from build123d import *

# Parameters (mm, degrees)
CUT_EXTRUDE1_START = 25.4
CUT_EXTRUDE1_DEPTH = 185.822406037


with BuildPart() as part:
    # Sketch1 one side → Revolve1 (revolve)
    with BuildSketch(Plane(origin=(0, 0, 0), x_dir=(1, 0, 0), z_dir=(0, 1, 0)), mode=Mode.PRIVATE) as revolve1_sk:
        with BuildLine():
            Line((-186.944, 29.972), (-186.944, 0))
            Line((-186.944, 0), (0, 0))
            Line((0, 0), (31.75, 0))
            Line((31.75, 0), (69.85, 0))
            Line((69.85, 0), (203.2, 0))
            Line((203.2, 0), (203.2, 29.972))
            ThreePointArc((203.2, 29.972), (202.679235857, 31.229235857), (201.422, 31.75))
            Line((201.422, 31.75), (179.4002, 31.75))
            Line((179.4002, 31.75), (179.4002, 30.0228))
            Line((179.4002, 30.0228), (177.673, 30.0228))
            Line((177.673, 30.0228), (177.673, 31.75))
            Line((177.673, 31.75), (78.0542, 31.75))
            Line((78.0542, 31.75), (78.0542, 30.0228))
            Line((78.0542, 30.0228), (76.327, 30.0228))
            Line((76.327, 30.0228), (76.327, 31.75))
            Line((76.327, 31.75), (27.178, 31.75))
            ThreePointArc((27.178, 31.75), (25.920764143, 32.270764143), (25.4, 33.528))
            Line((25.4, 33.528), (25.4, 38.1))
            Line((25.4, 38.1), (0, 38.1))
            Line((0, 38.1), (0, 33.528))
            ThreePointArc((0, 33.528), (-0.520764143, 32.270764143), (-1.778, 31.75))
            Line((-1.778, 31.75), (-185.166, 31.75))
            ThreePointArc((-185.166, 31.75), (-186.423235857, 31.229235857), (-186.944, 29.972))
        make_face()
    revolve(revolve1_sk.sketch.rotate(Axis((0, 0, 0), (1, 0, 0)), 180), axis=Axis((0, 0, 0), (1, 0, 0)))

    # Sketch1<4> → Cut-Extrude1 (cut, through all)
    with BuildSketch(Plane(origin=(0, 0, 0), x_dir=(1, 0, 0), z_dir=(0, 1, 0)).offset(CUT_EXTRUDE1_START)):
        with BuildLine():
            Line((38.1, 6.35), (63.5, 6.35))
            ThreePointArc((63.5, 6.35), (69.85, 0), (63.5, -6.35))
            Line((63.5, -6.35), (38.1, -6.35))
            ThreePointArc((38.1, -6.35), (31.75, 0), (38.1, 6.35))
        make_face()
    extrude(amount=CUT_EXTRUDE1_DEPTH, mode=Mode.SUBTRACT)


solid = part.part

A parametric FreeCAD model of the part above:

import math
import FreeCAD as App
import Part
import Sketcher

V = App.Vector
Q = App.Units.Quantity

doc = App.newDocument("Part")
body = doc.addObject("PartDesign::Body", "Body")

# Sketch on XZ plane
sketch1 = body.newObject("Sketcher::SketchObject", "Sketch")
sketch1.AttachmentSupport = (doc.getObject("XZ_Plane"), [""])
sketch1.MapMode = "FlatFace"
sketch1.addGeometry([
    Part.LineSegment(V(-186.944, -29.972, 0), V(-186.944, 0, 0)),  # 0
    Part.LineSegment(V(-186.944, 0, 0), V(203.2, 0, 0)),  # 1
    Part.LineSegment(V(203.2, 0, 0), V(203.2, -29.972, 0)),  # 2
    Part.ArcOfCircle(Part.Circle(V(201.422, -29.972, 0), V(0, 0, 1), 1.778), math.radians(-90), math.radians(0)),  # 3
    Part.LineSegment(V(201.422, -31.75, 0), V(179.4002, -31.75, 0)),  # 4
    Part.LineSegment(V(179.4002, -31.75, 0), V(179.4002, -30.0228, 0)),  # 5
    Part.LineSegment(V(179.4002, -30.0228, 0), V(177.673, -30.0228, 0)),  # 6
    Part.LineSegment(V(177.673, -30.0228, 0), V(177.673, -31.75, 0)),  # 7
    Part.LineSegment(V(177.673, -31.75, 0), V(78.0542, -31.75, 0)),  # 8
    Part.LineSegment(V(78.0542, -31.75, 0), V(78.0542, -30.0228, 0)),  # 9
    Part.LineSegment(V(78.0542, -30.0228, 0), V(76.327, -30.0228, 0)),  # 10
    Part.LineSegment(V(76.327, -30.0228, 0), V(76.327, -31.75, 0)),  # 11
    Part.LineSegment(V(76.327, -31.75, 0), V(27.178, -31.75, 0)),  # 12
    Part.ArcOfCircle(Part.Circle(V(27.178, -33.528, 0), V(0, 0, 1), 1.778), math.radians(90), math.radians(180)),  # 13
    Part.LineSegment(V(25.4, -33.528, 0), V(25.4, -38.1, 0)),  # 14
    Part.LineSegment(V(25.4, -38.1, 0), V(0, -38.1, 0)),  # 15
    Part.LineSegment(V(0, -38.1, 0), V(0, -33.528, 0)),  # 16
    Part.ArcOfCircle(Part.Circle(V(-1.778, -33.528, 0), V(0, 0, 1), 1.778), math.radians(0), math.radians(90)),  # 17
    Part.LineSegment(V(-1.778, -31.75, 0), V(-185.166, -31.75, 0)),  # 18
    Part.ArcOfCircle(Part.Circle(V(-185.166, -29.972, 0), V(0, 0, 1), 1.778), math.radians(180), math.radians(270)),  # 19
], False)
sketch1.addConstraint([
    Sketcher.Constraint("Coincident", 0, 2, 1, 1),
    Sketcher.Constraint("Coincident", 1, 2, 2, 1),
    Sketcher.Constraint("Tangent", 2, 2, 3, 2),
    Sketcher.Constraint("Tangent", 3, 1, 4, 1),
    Sketcher.Constraint("Coincident", 4, 2, 5, 1),
    Sketcher.Constraint("Coincident", 5, 2, 6, 1),
    Sketcher.Constraint("Coincident", 6, 2, 7, 1),
    Sketcher.Constraint("Coincident", 7, 2, 8, 1),
    Sketcher.Constraint("Coincident", 8, 2, 9, 1),
    Sketcher.Constraint("Coincident", 9, 2, 10, 1),
    Sketcher.Constraint("Coincident", 10, 2, 11, 1),
    Sketcher.Constraint("Coincident", 11, 2, 12, 1),
    Sketcher.Constraint("Tangent", 12, 2, 13, 1),
    Sketcher.Constraint("Tangent", 13, 2, 14, 1),
    Sketcher.Constraint("Coincident", 14, 2, 15, 1),
    Sketcher.Constraint("Coincident", 15, 2, 16, 1),
    Sketcher.Constraint("Tangent", 16, 2, 17, 1),
    Sketcher.Constraint("Tangent", 17, 2, 18, 1),
    Sketcher.Constraint("Tangent", 18, 2, 19, 2),
    Sketcher.Constraint("Tangent", 19, 1, 0, 1),
    Sketcher.Constraint("Vertical", 0),
    Sketcher.Constraint("Horizontal", 1),
    Sketcher.Constraint("Vertical", 2),
    Sketcher.Constraint("Horizontal", 4),
    Sketcher.Constraint("Vertical", 5),
    Sketcher.Constraint("Horizontal", 6),
    Sketcher.Constraint("Vertical", 7),
    Sketcher.Constraint("Horizontal", 8),
    Sketcher.Constraint("Vertical", 9),
    Sketcher.Constraint("Horizontal", 10),
    Sketcher.Constraint("Vertical", 11),
    Sketcher.Constraint("Horizontal", 12),
    Sketcher.Constraint("Vertical", 14),
    Sketcher.Constraint("Horizontal", 15),
    Sketcher.Constraint("Vertical", 16),
    Sketcher.Constraint("Horizontal", 18),
    Sketcher.Constraint("Equal", 3, 13),
    Sketcher.Constraint("Equal", 13, 17),
    Sketcher.Constraint("Equal", 17, 19),
    Sketcher.Constraint("PointOnObject", 0, 2, -1),
    Sketcher.Constraint("PointOnObject", 15, 2, -2),
    Sketcher.Constraint("Horizontal", 13, 3, 17, 3),
    Sketcher.Constraint("Horizontal", 3, 3, 19, 3),
    Sketcher.Constraint("Horizontal", 4, 2, 7, 2),
    Sketcher.Constraint("Horizontal", 6, 2, 9, 2),
    Sketcher.Constraint("Equal", 6, 10),
    Sketcher.Constraint("Equal", 10, 5),
    Sketcher.Constraint("DistanceX", 15, 2, 15, 1, Q("1 in")),
    Sketcher.Constraint("Radius", 3, Q("0.07 in")),
    Sketcher.Constraint("DistanceX", -1, 1, 1, 2, Q("8 in")),
    Sketcher.Constraint("DistanceX", 1, 1, 1, 2, Q("15.36 in")),
    Sketcher.Constraint("DistanceY", 0, 1, 0, 2, Q("1.18 in")),
    Sketcher.Constraint("DistanceY", 14, 2, 14, 1, Q("0.18 in")),
    Sketcher.Constraint("DistanceX", 4, 2, 4, 1, Q("0.867 in")),
    Sketcher.Constraint("DistanceX", 6, 2, 6, 1, Q("0.068 in")),
    Sketcher.Constraint("DistanceX", 8, 2, 8, 1, Q("3.922 in")),
])
revolution = body.newObject("PartDesign::Revolution", "Revolution")
revolution.Profile = sketch1
revolution.ReferenceAxis = (sketch1, ["H_Axis"])
revolution.Angle = 360

# Sketch on XZ plane
sketch2 = body.newObject("Sketcher::SketchObject", "Sketch001")
sketch2.AttachmentSupport = (doc.getObject("XZ_Plane"), [""])
sketch2.MapMode = "FlatFace"
sketch2.AttachmentOffset = App.Placement(V(0, 0, -1 * 25.4), App.Rotation())
sketch2.addGeometry([
    Part.LineSegment(V(63.5, -6.35, 0), V(38.1, -6.35, 0)),
    Part.ArcOfCircle(Part.Circle(V(38.1, 0, 0), V(0, 0, 1), 6.35), math.radians(90), math.radians(270)),
    Part.LineSegment(V(38.1, 6.35, 0), V(63.5, 6.35, 0)),
    Part.ArcOfCircle(Part.Circle(V(63.5, 0, 0), V(0, 0, 1), 6.35), math.radians(-90), math.radians(90)),
], False)
sketch2.addConstraint([
    Sketcher.Constraint("Tangent", 0, 2, 1, 2),
    Sketcher.Constraint("Tangent", 1, 1, 2, 1),
    Sketcher.Constraint("Tangent", 2, 2, 3, 2),
    Sketcher.Constraint("Tangent", 3, 1, 0, 1),
    Sketcher.Constraint("Horizontal", 0),
    Sketcher.Constraint("Horizontal", 2),
    Sketcher.Constraint("PointOnObject", 1, 3, -1),
    Sketcher.Constraint("DistanceX", 0, 2, 0, 1, Q("1 in")),
    Sketcher.Constraint("Radius", 1, Q("0.25 in")),
    Sketcher.Constraint("DistanceX", -1, 1, 1, 3, Q("1.5 in")),
])
pocket1 = body.newObject("PartDesign::Pocket", "Pocket")
pocket1.Profile = sketch2
pocket1.Type = "ThroughAll"

doc.recompute()
